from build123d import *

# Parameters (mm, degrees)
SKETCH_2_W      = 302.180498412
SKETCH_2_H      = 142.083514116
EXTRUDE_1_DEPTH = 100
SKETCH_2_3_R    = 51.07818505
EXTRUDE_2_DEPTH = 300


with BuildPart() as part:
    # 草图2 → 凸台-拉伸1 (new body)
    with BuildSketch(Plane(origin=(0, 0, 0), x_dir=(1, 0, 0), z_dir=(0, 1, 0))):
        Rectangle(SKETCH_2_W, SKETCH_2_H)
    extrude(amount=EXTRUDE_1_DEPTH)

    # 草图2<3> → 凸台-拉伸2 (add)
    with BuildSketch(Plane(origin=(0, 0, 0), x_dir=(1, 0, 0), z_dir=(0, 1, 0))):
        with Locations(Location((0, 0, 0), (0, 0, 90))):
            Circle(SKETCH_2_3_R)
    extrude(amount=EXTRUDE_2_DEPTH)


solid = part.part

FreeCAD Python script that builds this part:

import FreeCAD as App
import Part
import Sketcher
from FreeCAD import Vector
Q = App.Units.Quantity

doc = App.newDocument("Part")
body = doc.addObject("PartDesign::Body", "Body")

sketch1 = body.newObject("Sketcher::SketchObject", "Sketch")
sketch1.AttachmentSupport = (doc.getObject("XZ_Plane"), [""])
sketch1.MapMode = "FlatFace"
sketch1.addGeometry(Part.LineSegment(Vector(-151, -71, 0), Vector(-151, 71, 0)), False)
sketch1.addGeometry(Part.LineSegment(Vector(-151, 71, 0), Vector(151, 71, 0)), False)
sketch1.addGeometry(Part.LineSegment(Vector(151, 71, 0), Vector(151, -71, 0)), False)
sketch1.addGeometry(Part.LineSegment(Vector(151, -71, 0), Vector(-151, -71, 0)), False)
sketch1.addConstraint(Sketcher.Constraint("Coincident", 0, 2, 1, 1))
sketch1.addConstraint(Sketcher.Constraint("Coincident", 1, 2, 2, 1))
sketch1.addConstraint(Sketcher.Constraint("Coincident", 2, 2, 3, 1))
sketch1.addConstraint(Sketcher.Constraint("Coincident", 3, 2, 0, 1))
sketch1.addConstraint(Sketcher.Constraint("Vertical", 0))
sketch1.addConstraint(Sketcher.Constraint("Horizontal", 1))
sketch1.addConstraint(Sketcher.Constraint("Vertical", 2))
sketch1.addConstraint(Sketcher.Constraint("Horizontal", 3))
sketch1.addConstraint(Sketcher.Constraint("Symmetric", 0, 2, 2, 2, -1, 1))
sketch1.addConstraint(Sketcher.Constraint("DistanceX", 1, 1, 1, 2, Q("302.180498 mm")))
sketch1.addConstraint(Sketcher.Constraint("DistanceY", 0, 1, 0, 2, Q("142.083514 mm")))
pad1 = body.newObject("PartDesign::Pad", "Pad")
pad1.Profile = sketch1
pad1.Length = 100
pad1.Reversed = True

sketch2 = body.newObject("Sketcher::SketchObject", "Sketch001")
sketch2.AttachmentSupport = (doc.getObject("XZ_Plane"), [""])
sketch2.MapMode = "FlatFace"
sketch2.addGeometry(Part.Circle(Vector(0, 0, 0), Vector(0, 0, 1), 51), False)
sketch2.addConstraint(Sketcher.Constraint("Coincident", 0, 3, -1, 1))
sketch2.addConstraint(Sketcher.Constraint("Diameter", 0, Q("102.15637 mm")))
pad2 = body.newObject("PartDesign::Pad", "Pad001")
pad2.Profile = sketch2
pad2.Length = 300
pad2.Reversed = True

doc.recompute()
